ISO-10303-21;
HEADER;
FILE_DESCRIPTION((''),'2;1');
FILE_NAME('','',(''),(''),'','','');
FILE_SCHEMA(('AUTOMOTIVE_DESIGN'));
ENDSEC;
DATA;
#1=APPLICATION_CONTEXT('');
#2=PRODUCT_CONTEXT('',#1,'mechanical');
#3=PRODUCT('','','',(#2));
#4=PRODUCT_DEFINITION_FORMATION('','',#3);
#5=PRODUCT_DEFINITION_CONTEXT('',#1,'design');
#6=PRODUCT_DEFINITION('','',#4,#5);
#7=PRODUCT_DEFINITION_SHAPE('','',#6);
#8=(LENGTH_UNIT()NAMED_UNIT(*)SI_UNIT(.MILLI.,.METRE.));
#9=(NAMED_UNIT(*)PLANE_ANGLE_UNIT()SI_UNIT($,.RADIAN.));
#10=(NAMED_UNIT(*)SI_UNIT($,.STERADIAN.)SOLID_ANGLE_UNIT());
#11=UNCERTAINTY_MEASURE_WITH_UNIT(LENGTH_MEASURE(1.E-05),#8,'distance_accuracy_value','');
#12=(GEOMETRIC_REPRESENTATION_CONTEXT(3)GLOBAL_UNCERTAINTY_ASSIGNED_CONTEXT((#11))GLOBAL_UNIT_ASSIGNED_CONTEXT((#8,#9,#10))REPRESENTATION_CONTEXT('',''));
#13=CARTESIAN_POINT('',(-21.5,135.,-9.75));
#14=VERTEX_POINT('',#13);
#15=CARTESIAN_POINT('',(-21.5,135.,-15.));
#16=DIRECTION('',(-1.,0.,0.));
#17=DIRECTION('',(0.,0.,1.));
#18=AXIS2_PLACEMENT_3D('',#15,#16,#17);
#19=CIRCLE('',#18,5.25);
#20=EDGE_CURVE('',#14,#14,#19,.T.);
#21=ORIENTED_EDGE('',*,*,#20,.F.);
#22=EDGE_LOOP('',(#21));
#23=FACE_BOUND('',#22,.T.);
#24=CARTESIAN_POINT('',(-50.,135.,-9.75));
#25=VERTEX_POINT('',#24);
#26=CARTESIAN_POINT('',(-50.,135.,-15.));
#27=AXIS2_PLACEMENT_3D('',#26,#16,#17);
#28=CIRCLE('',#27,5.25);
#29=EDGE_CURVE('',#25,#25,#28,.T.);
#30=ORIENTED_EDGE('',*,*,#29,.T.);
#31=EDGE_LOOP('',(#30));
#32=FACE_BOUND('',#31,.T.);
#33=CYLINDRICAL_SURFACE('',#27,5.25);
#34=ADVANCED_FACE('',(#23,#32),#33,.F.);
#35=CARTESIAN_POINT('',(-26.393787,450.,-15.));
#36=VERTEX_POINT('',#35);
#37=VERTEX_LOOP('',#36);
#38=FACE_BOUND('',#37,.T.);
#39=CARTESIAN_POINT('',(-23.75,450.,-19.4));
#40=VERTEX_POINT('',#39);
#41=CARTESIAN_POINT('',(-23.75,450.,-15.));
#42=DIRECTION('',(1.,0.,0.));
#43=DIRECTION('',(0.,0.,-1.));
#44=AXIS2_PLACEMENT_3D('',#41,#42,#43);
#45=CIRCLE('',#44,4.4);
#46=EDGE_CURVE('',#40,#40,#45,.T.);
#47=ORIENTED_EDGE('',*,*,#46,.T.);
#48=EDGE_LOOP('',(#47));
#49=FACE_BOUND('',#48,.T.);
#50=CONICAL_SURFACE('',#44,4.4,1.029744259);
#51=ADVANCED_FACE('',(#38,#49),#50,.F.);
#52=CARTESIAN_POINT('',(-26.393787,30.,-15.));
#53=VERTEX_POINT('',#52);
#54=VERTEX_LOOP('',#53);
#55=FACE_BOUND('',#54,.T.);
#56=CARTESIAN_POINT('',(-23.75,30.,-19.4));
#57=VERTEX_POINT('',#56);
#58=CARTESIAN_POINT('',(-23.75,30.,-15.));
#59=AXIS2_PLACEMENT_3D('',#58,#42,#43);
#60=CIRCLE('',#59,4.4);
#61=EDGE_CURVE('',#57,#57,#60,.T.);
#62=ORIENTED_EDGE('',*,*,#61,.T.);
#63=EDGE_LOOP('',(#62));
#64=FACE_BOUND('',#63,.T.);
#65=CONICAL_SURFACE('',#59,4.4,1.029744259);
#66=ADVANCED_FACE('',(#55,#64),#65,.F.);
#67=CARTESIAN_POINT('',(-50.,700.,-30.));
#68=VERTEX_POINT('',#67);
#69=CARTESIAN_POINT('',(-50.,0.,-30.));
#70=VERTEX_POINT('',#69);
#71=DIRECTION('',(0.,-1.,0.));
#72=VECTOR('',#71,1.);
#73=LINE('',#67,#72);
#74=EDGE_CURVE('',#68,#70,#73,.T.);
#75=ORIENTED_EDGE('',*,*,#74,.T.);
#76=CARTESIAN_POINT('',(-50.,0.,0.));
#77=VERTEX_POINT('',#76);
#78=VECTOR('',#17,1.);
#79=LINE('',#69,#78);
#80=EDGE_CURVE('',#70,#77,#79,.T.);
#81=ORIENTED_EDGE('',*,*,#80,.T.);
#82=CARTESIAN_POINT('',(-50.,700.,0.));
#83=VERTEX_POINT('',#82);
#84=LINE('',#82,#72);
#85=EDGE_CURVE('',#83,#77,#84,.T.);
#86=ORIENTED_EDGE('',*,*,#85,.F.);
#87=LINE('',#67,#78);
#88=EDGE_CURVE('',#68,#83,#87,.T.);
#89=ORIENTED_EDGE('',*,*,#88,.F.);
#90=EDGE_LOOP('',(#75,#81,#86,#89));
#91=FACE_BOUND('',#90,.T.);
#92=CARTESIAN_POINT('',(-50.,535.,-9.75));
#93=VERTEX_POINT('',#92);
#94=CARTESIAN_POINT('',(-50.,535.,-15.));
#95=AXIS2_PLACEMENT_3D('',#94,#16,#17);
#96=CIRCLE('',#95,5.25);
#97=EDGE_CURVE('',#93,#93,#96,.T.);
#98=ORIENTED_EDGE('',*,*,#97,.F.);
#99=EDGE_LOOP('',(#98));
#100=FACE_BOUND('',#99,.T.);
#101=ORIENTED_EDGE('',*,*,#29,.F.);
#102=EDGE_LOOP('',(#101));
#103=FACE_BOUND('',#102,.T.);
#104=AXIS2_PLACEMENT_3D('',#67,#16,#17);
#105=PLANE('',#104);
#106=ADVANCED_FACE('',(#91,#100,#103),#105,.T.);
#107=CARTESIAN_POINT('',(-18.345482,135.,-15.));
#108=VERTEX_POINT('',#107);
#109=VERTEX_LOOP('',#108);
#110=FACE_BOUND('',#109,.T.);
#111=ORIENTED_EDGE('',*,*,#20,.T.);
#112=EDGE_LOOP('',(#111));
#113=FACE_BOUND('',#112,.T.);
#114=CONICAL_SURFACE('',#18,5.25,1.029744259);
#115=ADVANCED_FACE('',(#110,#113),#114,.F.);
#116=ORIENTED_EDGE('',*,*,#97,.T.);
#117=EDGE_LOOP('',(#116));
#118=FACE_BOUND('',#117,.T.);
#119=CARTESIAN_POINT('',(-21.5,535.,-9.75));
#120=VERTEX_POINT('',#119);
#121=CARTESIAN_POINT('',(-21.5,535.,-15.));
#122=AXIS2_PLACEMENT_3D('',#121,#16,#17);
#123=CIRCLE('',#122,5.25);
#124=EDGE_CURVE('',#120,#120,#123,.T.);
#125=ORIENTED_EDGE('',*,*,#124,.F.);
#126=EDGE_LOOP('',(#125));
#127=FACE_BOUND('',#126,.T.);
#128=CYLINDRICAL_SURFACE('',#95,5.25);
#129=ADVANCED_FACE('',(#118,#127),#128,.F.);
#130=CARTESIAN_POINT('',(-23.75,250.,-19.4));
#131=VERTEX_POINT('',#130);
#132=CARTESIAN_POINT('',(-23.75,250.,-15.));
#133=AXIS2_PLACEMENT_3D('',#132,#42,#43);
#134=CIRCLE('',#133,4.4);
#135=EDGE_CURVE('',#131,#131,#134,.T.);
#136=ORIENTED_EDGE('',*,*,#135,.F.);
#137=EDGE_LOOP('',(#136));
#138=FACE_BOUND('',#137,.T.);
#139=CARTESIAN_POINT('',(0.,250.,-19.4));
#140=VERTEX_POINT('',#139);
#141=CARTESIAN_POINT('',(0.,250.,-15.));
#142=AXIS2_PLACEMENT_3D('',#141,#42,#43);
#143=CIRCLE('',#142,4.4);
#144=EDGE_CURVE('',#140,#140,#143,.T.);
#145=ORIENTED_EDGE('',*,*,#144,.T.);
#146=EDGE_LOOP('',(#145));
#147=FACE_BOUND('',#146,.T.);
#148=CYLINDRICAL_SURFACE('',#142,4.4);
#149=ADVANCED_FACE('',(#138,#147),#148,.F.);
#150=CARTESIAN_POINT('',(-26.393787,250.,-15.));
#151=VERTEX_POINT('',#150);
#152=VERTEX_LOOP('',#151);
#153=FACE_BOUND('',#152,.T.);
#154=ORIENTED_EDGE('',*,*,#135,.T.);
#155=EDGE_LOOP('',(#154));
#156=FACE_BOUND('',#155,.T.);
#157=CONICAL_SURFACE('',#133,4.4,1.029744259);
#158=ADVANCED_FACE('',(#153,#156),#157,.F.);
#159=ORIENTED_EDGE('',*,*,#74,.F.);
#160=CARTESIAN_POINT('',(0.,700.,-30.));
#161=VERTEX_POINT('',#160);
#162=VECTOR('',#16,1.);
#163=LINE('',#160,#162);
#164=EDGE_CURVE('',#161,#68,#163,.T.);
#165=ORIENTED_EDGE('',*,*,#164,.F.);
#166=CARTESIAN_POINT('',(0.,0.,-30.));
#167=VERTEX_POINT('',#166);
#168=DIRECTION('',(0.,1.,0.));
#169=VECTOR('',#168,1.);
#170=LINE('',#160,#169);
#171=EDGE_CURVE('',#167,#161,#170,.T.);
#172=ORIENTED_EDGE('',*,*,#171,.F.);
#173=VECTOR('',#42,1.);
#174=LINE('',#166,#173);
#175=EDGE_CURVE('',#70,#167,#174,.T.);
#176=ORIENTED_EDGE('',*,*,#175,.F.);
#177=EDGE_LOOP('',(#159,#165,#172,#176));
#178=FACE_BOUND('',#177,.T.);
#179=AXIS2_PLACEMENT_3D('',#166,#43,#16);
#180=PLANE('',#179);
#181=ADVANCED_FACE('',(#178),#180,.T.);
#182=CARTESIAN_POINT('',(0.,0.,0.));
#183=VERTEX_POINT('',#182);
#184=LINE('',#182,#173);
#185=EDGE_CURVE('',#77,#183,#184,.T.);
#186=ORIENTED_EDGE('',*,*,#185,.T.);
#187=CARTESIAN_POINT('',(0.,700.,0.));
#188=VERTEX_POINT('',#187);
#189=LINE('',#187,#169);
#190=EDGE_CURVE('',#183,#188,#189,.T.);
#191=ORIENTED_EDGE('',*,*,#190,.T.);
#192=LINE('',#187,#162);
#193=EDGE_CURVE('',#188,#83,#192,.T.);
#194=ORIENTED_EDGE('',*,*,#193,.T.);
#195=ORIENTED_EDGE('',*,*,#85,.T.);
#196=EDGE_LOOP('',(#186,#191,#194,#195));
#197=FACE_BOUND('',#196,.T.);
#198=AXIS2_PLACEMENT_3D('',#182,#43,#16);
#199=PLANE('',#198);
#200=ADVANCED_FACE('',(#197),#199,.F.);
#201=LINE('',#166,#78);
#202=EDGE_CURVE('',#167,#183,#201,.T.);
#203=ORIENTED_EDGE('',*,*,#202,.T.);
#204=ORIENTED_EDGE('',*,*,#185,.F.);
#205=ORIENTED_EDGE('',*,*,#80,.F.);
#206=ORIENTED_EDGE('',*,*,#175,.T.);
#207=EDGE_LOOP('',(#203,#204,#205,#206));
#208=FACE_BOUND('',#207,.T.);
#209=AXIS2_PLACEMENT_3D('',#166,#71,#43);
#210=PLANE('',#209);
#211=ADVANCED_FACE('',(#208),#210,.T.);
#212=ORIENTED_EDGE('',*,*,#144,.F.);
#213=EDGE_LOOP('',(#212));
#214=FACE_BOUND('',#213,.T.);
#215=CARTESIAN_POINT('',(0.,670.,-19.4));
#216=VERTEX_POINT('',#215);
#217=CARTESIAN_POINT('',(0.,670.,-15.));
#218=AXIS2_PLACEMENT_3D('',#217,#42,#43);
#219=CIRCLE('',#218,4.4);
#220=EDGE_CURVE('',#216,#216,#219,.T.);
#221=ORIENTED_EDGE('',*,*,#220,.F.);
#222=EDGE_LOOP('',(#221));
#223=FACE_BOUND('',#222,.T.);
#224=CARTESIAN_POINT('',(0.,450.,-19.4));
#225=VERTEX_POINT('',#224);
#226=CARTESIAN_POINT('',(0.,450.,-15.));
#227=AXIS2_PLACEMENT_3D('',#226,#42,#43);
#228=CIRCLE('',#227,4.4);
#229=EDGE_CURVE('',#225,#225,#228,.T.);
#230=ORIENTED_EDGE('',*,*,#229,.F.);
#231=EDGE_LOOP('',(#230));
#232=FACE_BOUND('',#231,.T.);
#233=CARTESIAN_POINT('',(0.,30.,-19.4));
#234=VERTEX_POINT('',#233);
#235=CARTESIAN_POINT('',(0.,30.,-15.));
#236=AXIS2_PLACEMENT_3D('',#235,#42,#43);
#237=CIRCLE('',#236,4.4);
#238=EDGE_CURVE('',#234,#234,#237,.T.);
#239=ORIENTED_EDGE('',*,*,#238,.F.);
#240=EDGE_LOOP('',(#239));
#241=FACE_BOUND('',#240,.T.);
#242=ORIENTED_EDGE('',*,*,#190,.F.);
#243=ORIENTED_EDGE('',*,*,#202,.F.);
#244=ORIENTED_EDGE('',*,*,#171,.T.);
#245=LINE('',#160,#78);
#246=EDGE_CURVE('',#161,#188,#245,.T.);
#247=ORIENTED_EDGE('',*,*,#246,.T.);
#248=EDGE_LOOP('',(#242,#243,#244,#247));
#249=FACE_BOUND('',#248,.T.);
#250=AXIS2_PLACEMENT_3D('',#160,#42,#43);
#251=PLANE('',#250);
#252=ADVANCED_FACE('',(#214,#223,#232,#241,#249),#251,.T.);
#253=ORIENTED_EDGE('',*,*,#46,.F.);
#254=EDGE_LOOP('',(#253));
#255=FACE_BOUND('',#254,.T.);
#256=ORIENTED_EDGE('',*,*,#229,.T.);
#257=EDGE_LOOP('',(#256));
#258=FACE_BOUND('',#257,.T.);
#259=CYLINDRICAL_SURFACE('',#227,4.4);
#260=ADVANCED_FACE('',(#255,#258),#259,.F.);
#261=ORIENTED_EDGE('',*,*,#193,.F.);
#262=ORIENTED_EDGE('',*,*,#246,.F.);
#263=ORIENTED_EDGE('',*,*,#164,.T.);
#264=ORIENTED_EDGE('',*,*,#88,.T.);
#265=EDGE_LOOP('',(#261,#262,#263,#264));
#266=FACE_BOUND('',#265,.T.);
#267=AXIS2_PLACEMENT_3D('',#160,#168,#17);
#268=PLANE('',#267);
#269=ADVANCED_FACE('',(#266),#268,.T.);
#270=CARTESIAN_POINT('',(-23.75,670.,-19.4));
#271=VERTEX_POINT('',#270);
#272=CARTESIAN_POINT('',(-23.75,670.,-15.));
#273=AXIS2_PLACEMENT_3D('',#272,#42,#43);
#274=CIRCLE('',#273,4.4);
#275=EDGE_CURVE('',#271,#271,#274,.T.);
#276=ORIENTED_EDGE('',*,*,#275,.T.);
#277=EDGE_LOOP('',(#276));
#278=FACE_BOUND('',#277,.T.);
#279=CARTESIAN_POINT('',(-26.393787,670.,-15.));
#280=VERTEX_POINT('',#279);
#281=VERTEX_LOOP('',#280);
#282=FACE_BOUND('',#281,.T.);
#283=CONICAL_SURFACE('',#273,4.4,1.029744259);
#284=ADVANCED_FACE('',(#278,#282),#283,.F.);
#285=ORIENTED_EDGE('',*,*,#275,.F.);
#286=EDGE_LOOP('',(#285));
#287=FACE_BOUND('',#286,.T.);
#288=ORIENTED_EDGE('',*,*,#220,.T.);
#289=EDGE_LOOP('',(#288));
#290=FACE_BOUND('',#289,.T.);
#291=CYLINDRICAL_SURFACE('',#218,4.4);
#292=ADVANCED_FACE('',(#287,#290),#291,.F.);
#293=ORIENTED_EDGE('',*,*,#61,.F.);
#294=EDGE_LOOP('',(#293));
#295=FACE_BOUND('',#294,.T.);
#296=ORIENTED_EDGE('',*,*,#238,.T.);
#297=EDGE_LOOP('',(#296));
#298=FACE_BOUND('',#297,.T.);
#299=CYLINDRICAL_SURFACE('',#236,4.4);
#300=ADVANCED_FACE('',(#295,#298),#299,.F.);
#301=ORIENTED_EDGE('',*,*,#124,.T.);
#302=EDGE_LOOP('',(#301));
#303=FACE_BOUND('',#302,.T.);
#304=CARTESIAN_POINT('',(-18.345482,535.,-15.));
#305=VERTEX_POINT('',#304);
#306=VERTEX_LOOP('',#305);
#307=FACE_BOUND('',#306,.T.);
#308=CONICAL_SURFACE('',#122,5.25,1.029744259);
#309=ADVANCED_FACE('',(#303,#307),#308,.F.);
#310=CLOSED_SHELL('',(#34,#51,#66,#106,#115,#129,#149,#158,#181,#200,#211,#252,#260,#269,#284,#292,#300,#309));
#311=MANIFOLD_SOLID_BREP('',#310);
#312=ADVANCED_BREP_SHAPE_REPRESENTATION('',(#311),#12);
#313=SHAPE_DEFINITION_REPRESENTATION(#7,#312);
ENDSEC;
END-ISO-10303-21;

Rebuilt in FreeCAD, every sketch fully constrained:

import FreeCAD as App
import Part
import Sketcher
Q = App.Units.Quantity


def add_polygon(sketch, points):
    """Adds a closed chain of lines whose ends are joined by coincident constraints."""
    first, n = sketch.GeometryCount, len(points)
    for a, b in zip(points, points[1:] + points[:1]):
        sketch.addGeometry(Part.LineSegment(App.Vector(*a, 0), App.Vector(*b, 0)), False)
    for i in range(n):
        sketch.addConstraint(Sketcher.Constraint("Coincident", first + i, 2, first + (i + 1) % n, 1))

doc = App.newDocument("Part")
body = doc.addObject("PartDesign::Body", "Body")

sketch1 = body.newObject("Sketcher::SketchObject", "Sketch")
sketch1.AttachmentSupport = (doc.getObject("XY_Plane"), [""])
sketch1.MapMode = "FlatFace"
add_polygon(sketch1, [(-50, 700), (-50, 0), (0, 0), (0, 700)])
sketch1.addConstraint([
    Sketcher.Constraint("Vertical", 0),
    Sketcher.Constraint("Horizontal", 1),
    Sketcher.Constraint("Vertical", 2),
    Sketcher.Constraint("Horizontal", 3),
    Sketcher.Constraint("Coincident", 1, 2, -1, 1),
    Sketcher.Constraint("DistanceX", 1, 1, 1, 2, Q("50 mm")),
    Sketcher.Constraint("DistanceY", 0, 2, 0, 1, Q("700 mm")),
])
pad1 = body.newObject("PartDesign::Pad", "Pad")
pad1.Profile = sketch1
pad1.Length = 30
pad1.Reversed = True

sketch2 = body.newObject("Sketcher::SketchObject", "Sketch001")
sketch2.AttachmentSupport = (doc.getObject("YZ_Plane"), [""])
sketch2.MapMode = "FlatFace"
sketch2.addGeometry([
    Part.Circle(App.Vector(670, -15, 0), App.Vector(0, 0, 1), 4.4),
    Part.Circle(App.Vector(450, -15, 0), App.Vector(0, 0, 1), 4.4),
    Part.Circle(App.Vector(250, -15, 0), App.Vector(0, 0, 1), 4.4),
    Part.Circle(App.Vector(30, -15, 0), App.Vector(0, 0, 1), 4.4),
], False)
sketch2.addConstraint([
    Sketcher.Constraint("Equal", 0, 1),
    Sketcher.Constraint("Equal", 1, 2),
    Sketcher.Constraint("Equal", 2, 3),
    Sketcher.Constraint("Horizontal", 0, 3, 1, 3),
    Sketcher.Constraint("Horizontal", 1, 3, 2, 3),
    Sketcher.Constraint("Horizontal", 2, 3, 3, 3),
    Sketcher.Constraint("Diameter", 0, Q("8.8 mm")),
    Sketcher.Constraint("DistanceX", -1, 1, 0, 3, Q("670 mm")),
    Sketcher.Constraint("DistanceY", 0, 3, -1, 1, Q("15 mm")),
    Sketcher.Constraint("DistanceX", -1, 1, 1, 3, Q("450 mm")),
    Sketcher.Constraint("DistanceX", -1, 1, 2, 3, Q("250 mm")),
    Sketcher.Constraint("DistanceX", -1, 1, 3, 3, Q("30 mm")),
])
doc.recompute()
hole = body.newObject("PartDesign::Hole", "Hole")
hole.Profile = sketch2
hole.ThreadType = "None"
hole.Diameter = 8.8
hole.DepthType = "Dimension"
hole.Depth = 23.75
hole.DrillPoint = "Angled"
hole.DrillPointAngle = 118

sketch3 = body.newObject("Sketcher::SketchObject", "Sketch002")
sketch3.AttachmentSupport = (doc.getObject("YZ_Plane"), [""])
sketch3.MapMode = "FlatFace"
sketch3.AttachmentOffset = App.Placement(App.Vector(0, 0, -50), App.Rotation())
sketch3.addGeometry([
    Part.Circle(App.Vector(535, -15, 0), App.Vector(0, 0, 1), 5.25),
    Part.Circle(App.Vector(135, -15, 0), App.Vector(0, 0, 1), 5.25),
], False)
sketch3.addConstraint([
    Sketcher.Constraint("Equal", 0, 1),
    Sketcher.Constraint("Horizontal", 0, 3, 1, 3),
    Sketcher.Constraint("Diameter", 0, Q("10.5 mm")),
    Sketcher.Constraint("DistanceX", -1, 1, 0, 3, Q("535 mm")),
    Sketcher.Constraint("DistanceY", 0, 3, -1, 1, Q("15 mm")),
    Sketcher.Constraint("DistanceX", -1, 1, 1, 3, Q("135 mm")),
])
doc.recompute()
hole2 = body.newObject("PartDesign::Hole", "Hole001")
hole2.Profile = sketch3
hole2.ThreadType = "None"
hole2.Diameter = 10.5
hole2.DepthType = "Dimension"
hole2.Depth = 28.5
hole2.DrillPoint = "Angled"
hole2.DrillPointAngle = 118
hole2.Reversed = True

doc.recompute()
